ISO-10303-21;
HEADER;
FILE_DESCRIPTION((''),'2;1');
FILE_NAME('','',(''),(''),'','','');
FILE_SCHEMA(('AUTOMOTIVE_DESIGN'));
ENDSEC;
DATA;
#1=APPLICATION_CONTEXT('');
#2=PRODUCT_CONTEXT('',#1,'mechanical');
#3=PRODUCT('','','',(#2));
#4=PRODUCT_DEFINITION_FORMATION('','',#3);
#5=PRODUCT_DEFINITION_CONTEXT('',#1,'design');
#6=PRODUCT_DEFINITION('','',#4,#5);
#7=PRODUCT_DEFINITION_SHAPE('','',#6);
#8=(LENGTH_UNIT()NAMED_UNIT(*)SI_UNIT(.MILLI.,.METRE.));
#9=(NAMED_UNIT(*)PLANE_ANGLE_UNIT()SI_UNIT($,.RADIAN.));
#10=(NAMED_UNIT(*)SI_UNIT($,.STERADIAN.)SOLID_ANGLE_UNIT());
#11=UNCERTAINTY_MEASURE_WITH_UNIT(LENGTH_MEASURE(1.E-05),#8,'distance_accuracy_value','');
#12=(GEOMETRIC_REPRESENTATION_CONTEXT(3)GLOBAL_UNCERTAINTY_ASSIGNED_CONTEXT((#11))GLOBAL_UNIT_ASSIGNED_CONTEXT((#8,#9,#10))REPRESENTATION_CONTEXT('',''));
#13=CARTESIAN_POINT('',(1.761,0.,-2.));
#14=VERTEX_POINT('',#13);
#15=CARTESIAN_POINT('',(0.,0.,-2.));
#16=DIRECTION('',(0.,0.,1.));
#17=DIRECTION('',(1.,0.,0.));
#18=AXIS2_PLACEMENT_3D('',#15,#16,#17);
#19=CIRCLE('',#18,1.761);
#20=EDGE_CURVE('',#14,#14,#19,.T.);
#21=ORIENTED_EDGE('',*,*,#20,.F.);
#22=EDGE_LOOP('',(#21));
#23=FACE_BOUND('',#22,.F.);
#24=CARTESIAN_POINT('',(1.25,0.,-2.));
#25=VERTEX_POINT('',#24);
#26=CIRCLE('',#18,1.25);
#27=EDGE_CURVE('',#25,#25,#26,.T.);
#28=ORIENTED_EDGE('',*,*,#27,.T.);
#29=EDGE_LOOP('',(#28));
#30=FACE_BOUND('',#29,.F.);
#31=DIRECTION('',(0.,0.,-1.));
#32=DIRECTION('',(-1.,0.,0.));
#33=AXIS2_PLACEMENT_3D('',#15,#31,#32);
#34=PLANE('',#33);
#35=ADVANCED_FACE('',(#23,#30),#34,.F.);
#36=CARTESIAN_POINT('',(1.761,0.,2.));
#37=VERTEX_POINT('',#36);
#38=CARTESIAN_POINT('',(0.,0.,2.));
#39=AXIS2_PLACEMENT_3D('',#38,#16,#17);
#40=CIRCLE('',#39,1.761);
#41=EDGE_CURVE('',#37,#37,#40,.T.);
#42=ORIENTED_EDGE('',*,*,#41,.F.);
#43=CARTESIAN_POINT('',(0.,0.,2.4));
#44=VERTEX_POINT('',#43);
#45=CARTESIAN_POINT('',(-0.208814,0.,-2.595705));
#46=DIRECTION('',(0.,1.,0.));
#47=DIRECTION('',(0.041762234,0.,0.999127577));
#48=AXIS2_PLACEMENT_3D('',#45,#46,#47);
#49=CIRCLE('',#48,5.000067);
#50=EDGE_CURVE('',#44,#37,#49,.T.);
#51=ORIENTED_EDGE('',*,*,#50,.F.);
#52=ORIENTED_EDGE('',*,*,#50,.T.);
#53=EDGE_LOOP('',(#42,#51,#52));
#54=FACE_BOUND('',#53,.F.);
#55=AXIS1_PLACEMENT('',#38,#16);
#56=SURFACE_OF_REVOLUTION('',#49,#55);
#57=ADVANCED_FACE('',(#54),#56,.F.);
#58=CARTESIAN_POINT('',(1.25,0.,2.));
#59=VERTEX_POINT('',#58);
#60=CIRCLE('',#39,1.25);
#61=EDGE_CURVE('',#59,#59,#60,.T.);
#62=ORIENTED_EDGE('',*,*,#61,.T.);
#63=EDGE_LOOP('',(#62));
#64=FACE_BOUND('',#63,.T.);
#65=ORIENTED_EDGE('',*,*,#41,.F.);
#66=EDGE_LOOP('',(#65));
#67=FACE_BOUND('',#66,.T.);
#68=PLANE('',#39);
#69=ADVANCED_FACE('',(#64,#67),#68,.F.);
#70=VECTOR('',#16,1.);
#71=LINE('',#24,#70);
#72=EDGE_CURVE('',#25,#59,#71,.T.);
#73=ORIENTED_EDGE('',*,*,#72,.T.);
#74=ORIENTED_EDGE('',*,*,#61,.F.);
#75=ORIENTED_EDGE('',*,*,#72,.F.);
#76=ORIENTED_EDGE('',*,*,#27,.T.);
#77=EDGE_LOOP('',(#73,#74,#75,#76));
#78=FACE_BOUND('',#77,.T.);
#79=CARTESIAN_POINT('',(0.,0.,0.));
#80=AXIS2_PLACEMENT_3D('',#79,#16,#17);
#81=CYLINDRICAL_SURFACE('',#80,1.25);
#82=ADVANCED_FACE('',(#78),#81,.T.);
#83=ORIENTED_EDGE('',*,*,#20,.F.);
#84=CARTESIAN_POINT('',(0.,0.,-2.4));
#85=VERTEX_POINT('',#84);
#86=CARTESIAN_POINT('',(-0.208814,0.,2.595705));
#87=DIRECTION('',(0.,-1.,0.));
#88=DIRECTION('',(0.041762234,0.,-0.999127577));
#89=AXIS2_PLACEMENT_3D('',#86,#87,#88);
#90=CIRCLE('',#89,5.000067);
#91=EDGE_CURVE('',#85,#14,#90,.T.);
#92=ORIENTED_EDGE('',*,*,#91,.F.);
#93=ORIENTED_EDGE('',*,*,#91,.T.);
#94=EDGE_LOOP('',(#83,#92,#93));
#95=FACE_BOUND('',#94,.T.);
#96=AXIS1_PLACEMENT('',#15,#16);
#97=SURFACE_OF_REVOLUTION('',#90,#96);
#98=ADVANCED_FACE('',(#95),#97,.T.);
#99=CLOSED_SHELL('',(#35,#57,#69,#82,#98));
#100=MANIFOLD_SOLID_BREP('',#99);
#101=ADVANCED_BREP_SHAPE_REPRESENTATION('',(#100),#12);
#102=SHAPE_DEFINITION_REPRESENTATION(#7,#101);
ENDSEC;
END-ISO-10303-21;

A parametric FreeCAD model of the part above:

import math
import FreeCAD as App
import Part
import Sketcher
from FreeCAD import Vector
Q = App.Units.Quantity

doc = App.newDocument("Part")
body = doc.addObject("PartDesign::Body", "Body")

# Sketch on XY plane
sketch1 = doc.addObject("Sketcher::SketchObject", "Sketch")
body.addObject(sketch1)
sketch1.AttachmentSupport = (doc.XY_Plane, [""])
sketch1.MapMode = "FlatFace"
sketch1.addGeometry(Part.Circle(Vector(0, 0, 0), Vector(0, 0, 1), 1.25), False)
sketch1.addConstraint([
    Sketcher.Constraint("Coincident", 0, 3, -1, 1),
    Sketcher.Constraint("Diameter", 0, Q("2.5 mm")),
])
pad1 = doc.addObject("PartDesign::Pad", "Pad")
body.addObject(pad1)
pad1.Profile = sketch1
pad1.Length = 4
pad1.Midplane = True

# Sketch on XZ plane
sketch2 = doc.addObject("Sketcher::SketchObject", "Sketch001")
body.addObject(sketch2)
sketch2.AttachmentSupport = (doc.XZ_Plane, [""])
sketch2.MapMode = "FlatFace"
sketch2.addGeometry([
    Part.LineSegment(Vector(1.761, 2, 0), Vector(0, 2, 0)),
    Part.LineSegment(Vector(0, 2, 0), Vector(0, 2.4, 0)),
    Part.ArcOfCircle(Part.Circle(Vector(-0.2088, -2.5956, 0), Vector(0, 0, 1), 4.999962), math.radians(66.798701), math.radians(87.606614)),
], False)
sketch2.addConstraint([
    Sketcher.Constraint("Coincident", 0, 2, 1, 1),
    Sketcher.Constraint("Coincident", 1, 2, 2, 2),
    Sketcher.Constraint("Coincident", 2, 1, 0, 1),
    Sketcher.Constraint("Horizontal", 0),
    Sketcher.Constraint("Vertical", 1),
    Sketcher.Constraint("PointOnObject", 0, 2, -2),
    Sketcher.Constraint("Radius", 2, Q("5 mm")),
    Sketcher.Constraint("DistanceY", 1, 1, 1, 2, Q("0.4 mm")),
    Sketcher.Constraint("DistanceY", -1, 1, 0, 2, Q("2 mm")),
    Sketcher.Constraint("DistanceX", 0, 2, 0, 1, Q("1.761 mm")),
])
revolution = doc.addObject("PartDesign::Revolution", "Revolution")
body.addObject(revolution)
revolution.Profile = sketch2
revolution.ReferenceAxis = (sketch2, ["V_Axis"])
revolution.Angle = 360
doc.recompute()

mirrored = doc.addObject("PartDesign::Mirrored", "Mirrored")
body.addObject(mirrored)
mirrored.Originals = [revolution]
mirrored.MirrorPlane = (doc.XY_Plane, [""])
body.Tip = mirrored

doc.recompute()
